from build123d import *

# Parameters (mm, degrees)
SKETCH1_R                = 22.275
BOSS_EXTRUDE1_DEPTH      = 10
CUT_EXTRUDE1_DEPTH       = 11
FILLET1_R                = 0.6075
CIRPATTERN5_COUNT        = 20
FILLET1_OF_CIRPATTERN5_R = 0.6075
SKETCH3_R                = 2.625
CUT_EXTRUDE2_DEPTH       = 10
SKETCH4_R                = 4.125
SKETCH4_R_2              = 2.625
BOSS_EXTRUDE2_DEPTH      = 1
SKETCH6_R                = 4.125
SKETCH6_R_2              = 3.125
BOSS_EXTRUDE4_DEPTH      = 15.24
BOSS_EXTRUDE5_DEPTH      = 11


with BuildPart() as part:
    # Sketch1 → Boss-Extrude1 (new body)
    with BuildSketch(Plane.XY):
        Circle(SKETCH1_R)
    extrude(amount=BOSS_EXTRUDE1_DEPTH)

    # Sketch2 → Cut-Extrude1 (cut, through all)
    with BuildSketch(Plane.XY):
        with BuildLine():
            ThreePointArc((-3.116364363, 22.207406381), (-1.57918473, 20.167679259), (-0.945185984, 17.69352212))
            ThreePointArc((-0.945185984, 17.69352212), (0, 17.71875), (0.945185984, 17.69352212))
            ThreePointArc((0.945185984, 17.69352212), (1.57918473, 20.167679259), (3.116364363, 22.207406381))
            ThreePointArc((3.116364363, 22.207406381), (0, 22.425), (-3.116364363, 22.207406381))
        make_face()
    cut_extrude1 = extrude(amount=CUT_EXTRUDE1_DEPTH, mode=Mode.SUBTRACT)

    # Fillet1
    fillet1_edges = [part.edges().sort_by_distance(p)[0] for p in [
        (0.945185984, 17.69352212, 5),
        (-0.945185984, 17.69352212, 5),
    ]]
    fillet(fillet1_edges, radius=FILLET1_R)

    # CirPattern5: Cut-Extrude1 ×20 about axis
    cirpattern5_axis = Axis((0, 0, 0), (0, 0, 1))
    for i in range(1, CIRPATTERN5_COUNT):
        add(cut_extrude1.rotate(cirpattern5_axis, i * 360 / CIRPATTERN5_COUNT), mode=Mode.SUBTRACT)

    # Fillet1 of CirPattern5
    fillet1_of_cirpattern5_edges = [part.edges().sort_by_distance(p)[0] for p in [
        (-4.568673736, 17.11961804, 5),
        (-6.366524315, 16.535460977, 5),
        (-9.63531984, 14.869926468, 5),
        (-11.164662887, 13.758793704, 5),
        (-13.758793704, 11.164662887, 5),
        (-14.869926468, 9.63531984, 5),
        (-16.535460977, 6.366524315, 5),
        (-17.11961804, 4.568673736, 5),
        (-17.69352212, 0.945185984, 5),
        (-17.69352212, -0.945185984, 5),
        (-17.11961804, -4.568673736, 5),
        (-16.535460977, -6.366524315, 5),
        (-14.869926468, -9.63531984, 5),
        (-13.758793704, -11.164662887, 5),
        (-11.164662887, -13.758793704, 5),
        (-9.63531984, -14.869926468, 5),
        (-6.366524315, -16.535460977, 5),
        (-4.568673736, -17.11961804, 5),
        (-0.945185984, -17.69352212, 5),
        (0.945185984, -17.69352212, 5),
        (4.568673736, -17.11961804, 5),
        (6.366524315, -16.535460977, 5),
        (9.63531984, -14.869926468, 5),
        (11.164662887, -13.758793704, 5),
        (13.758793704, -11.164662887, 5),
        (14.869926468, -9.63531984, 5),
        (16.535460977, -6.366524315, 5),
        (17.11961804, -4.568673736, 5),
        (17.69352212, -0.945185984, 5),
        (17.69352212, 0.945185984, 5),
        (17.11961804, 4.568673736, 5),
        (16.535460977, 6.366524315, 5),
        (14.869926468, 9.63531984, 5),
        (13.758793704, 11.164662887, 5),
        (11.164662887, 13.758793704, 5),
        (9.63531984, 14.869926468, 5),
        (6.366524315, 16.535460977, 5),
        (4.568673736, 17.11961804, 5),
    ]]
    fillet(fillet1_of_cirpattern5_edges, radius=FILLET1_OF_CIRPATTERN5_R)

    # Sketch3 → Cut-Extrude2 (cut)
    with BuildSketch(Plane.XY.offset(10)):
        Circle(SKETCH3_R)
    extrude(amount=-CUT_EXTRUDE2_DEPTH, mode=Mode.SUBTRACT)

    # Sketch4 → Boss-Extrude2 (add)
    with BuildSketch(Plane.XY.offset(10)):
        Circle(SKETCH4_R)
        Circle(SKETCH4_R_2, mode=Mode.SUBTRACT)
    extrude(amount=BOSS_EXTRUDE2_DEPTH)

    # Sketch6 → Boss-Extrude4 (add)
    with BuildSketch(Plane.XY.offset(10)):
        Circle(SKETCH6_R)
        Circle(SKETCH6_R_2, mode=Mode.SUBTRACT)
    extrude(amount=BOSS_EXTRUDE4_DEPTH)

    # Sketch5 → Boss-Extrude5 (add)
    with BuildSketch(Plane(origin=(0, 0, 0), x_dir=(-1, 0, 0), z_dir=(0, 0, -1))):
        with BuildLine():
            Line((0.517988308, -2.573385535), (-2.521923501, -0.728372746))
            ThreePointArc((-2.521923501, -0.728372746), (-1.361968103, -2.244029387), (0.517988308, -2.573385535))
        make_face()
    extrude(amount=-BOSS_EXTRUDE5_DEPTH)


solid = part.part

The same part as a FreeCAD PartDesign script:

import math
import FreeCAD as App
import Part
import Sketcher


def edges_at(feature, points):
    """Names of the edges that pass closest to the given points."""
    edges = feature.Shape.Edges
    near = lambda p: min(range(len(edges)), key=lambda i: edges[i].distToShape(Part.Vertex(*p))[0])
    return sorted({f"Edge{near(p) + 1}" for p in points})

doc = App.newDocument("Part")
params = doc.addObject("Spreadsheet::Sheet", "Params")
for row, (alias, value) in enumerate([
    ("sketch1_diameter", "44.55 mm"),
    ("pad1_length", "10 mm"),
    ("fillet_radius", "0.6075 mm"),
    ("fillet2_radius", "0.6075 mm"),
    ("sketch3_diameter", "5.25 mm"),
    ("pocket2_length", "10 mm"),
    ("sketch4_diameter", "8.25 mm"),
    ("sketch4_diameter2", "5.25 mm"),
    ("pad2_length", "1 mm"),
    ("sketch5_diameter", "8.25 mm"),
    ("sketch5_diameter2", "6.25 mm"),
    ("pad3_length", "15.24 mm"),
    ("pad4_length", "11 mm"),
], start=1):
    params.set(f"A{row}", alias)
    params.set(f"B{row}", "=" + value)
    params.setAlias(f"B{row}", alias)

body = doc.addObject("PartDesign::Body", "Body")

# Sketch on XY plane
sketch1 = body.newObject("Sketcher::SketchObject", "Sketch")
sketch1.AttachmentSupport = (doc.getObject("XY_Plane"), [""])
sketch1.MapMode = "FlatFace"
sketch1.addGeometry(Part.Circle(App.Vector(0, 0, 0), App.Vector(0, 0, 1), 22), False)
sketch1.addConstraint([
    Sketcher.Constraint("Coincident", 0, 3, -1, 1),
    Sketcher.Constraint("Diameter", 0, 44.55),
])
sketch1.setExpression("Constraints[1]", "Params.sketch1_diameter")
pad1 = body.newObject("PartDesign::Pad", "Pad")
pad1.Profile = sketch1
pad1.setExpression("Length", "Params.pad1_length")

# Sketch on XY plane
sketch2 = body.newObject("Sketcher::SketchObject", "Sketch001")
sketch2.AttachmentSupport = (doc.getObject("XY_Plane"), [""])
sketch2.MapMode = "FlatFace"
sketch2.addGeometry([
    Part.ArcOfCircle(Part.Circle(App.Vector(-7.4, 17.3, 0), App.Vector(0, 0, 1), 6.5), math.radians(3), math.radians(48)),
    Part.ArcOfCircle(Part.Circle(App.Vector(0, 0, 0), App.Vector(0, 0, 1), 17.7), math.radians(86.94), math.radians(93.06)),
    Part.ArcOfCircle(Part.Circle(App.Vector(7.4, 17.3, 0), App.Vector(0, 0, 1), 6.5), math.radians(132), math.radians(177)),
    Part.ArcOfCircle(Part.Circle(App.Vector(0, 0, 0), App.Vector(0, 0, 1), 22.4), math.radians(82.01), math.radians(97.99)),
], False)
sketch2.addConstraint([
    Sketcher.Constraint("Coincident", 0, 1, 1, 2),
    Sketcher.Constraint("Coincident", 1, 1, 2, 2),
    Sketcher.Constraint("Coincident", 2, 1, 3, 1),
    Sketcher.Constraint("Coincident", 3, 2, 0, 2),
    Sketcher.Constraint("Coincident", 1, 3, -1, 1),
    Sketcher.Constraint("Coincident", 3, 3, -1, 1),
    Sketcher.Constraint("Equal", 0, 2),
    Sketcher.Constraint("Symmetric", 0, 3, 2, 3, -2),
    Sketcher.Constraint("Radius", 3, 22.425),
    Sketcher.Constraint("Radius", 1, 17.71875),
    Sketcher.Constraint("Radius", 0, 6.508893),
    Sketcher.Constraint("DistanceX", 0, 3, -1, 1, 7.444811),
    Sketcher.Constraint("DistanceY", 0, 3, 0, 1, 0.347209),
])
pocket1 = body.newObject("PartDesign::Pocket", "Pocket")
pocket1.Profile = sketch2
pocket1.Type = "ThroughAll"
pocket1.Reversed = True
doc.recompute()

fillet = body.newObject("PartDesign::Fillet", "Fillet")
fillet.Base = (pocket1, edges_at(pocket1, [(0.945, 17.694, 5), (-0.945, 17.694, 5)]))
fillet.setExpression("Radius", "Params.fillet_radius")
doc.recompute()

polarpattern = body.newObject("PartDesign::PolarPattern", "PolarPattern")
polarpattern.Originals = [pocket1]
polarpattern.Axis = (doc.getObject("Z_Axis"), [""])
polarpattern.Angle = 360
polarpattern.Occurrences = 20
body.Tip = polarpattern
doc.recompute()

fillet2 = body.newObject("PartDesign::Fillet", "Fillet001")
fillet2.Base = (polarpattern, edges_at(polarpattern, [
    (-4.569, 17.12, 5),
    (-6.367, 16.535, 5),
    (-9.635, 14.87, 5),
    (-11.165, 13.759, 5),
    (-13.759, 11.165, 5),
    (-14.87, 9.635, 5),
    (-16.535, 6.367, 5),
    (-17.12, 4.569, 5),
    (-17.694, 0.945, 5),
    (-17.694, -0.945, 5),
    (-17.12, -4.569, 5),
    (-16.535, -6.367, 5),
    (-14.87, -9.635, 5),
    (-13.759, -11.165, 5),
    (-11.165, -13.759, 5),
    (-9.635, -14.87, 5),
    (-6.367, -16.535, 5),
    (-4.569, -17.12, 5),
    (-0.945, -17.694, 5),
    (0.945, -17.694, 5),
    (4.569, -17.12, 5),
    (6.367, -16.535, 5),
    (9.635, -14.87, 5),
    (11.165, -13.759, 5),
    (13.759, -11.165, 5),
    (14.87, -9.635, 5),
    (16.535, -6.367, 5),
    (17.12, -4.569, 5),
    (17.694, -0.945, 5),
    (17.694, 0.945, 5),
    (17.12, 4.569, 5),
    (16.535, 6.367, 5),
    (14.87, 9.635, 5),
    (13.759, 11.165, 5),
    (11.165, 13.759, 5),
    (9.635, 14.87, 5),
    (6.367, 16.535, 5),
    (4.569, 17.12, 5),
]))
fillet2.setExpression("Radius", "Params.fillet2_radius")

# Sketch on XY plane
sketch3 = body.newObject("Sketcher::SketchObject", "Sketch002")
sketch3.AttachmentSupport = (doc.getObject("XY_Plane"), [""])
sketch3.MapMode = "FlatFace"
sketch3.AttachmentOffset = App.Placement(App.Vector(0, 0, 10), App.Rotation())
sketch3.addGeometry(Part.Circle(App.Vector(0, 0, 0), App.Vector(0, 0, 1), 2.6), False)
sketch3.addConstraint([
    Sketcher.Constraint("Coincident", 0, 3, -1, 1),
    Sketcher.Constraint("Diameter", 0, 5.25),
])
sketch3.setExpression("Constraints[1]", "Params.sketch3_diameter")
pocket2 = body.newObject("PartDesign::Pocket", "Pocket001")
pocket2.Profile = sketch3
pocket2.setExpression("Length", "Params.pocket2_length")

# Sketch on XY plane
sketch4 = body.newObject("Sketcher::SketchObject", "Sketch003")
sketch4.AttachmentSupport = (doc.getObject("XY_Plane"), [""])
sketch4.MapMode = "FlatFace"
sketch4.AttachmentOffset = App.Placement(App.Vector(0, 0, 10), App.Rotation())
sketch4.addGeometry([
    Part.Circle(App.Vector(0, 0, 0), App.Vector(0, 0, 1), 4.1),
    Part.Circle(App.Vector(0, 0, 0), App.Vector(0, 0, 1), 2.6),
], False)
sketch4.addConstraint([
    Sketcher.Constraint("Coincident", 0, 3, -1, 1),
    Sketcher.Constraint("Coincident", 1, 3, -1, 1),
    Sketcher.Constraint("Diameter", 0, 8.25),
    Sketcher.Constraint("Diameter", 1, 5.25),
])
sketch4.setExpression("Constraints[2]", "Params.sketch4_diameter")
sketch4.setExpression("Constraints[3]", "Params.sketch4_diameter2")
pad2 = body.newObject("PartDesign::Pad", "Pad001")
pad2.Profile = sketch4
pad2.setExpression("Length", "Params.pad2_length")

# Sketch on XY plane
sketch5 = body.newObject("Sketcher::SketchObject", "Sketch004")
sketch5.AttachmentSupport = (doc.getObject("XY_Plane"), [""])
sketch5.MapMode = "FlatFace"
sketch5.AttachmentOffset = App.Placement(App.Vector(0, 0, 10), App.Rotation())
sketch5.addGeometry([
    Part.Circle(App.Vector(0, 0, 0), App.Vector(0, 0, 1), 4.1),
    Part.Circle(App.Vector(0, 0, 0), App.Vector(0, 0, 1), 3.1),
], False)
sketch5.addConstraint([
    Sketcher.Constraint("Coincident", 0, 3, -1, 1),
    Sketcher.Constraint("Coincident", 1, 3, -1, 1),
    Sketcher.Constraint("Diameter", 0, 8.25),
    Sketcher.Constraint("Diameter", 1, 6.25),
])
sketch5.setExpression("Constraints[2]", "Params.sketch5_diameter")
sketch5.setExpression("Constraints[3]", "Params.sketch5_diameter2")
pad3 = body.newObject("PartDesign::Pad", "Pad002")
pad3.Profile = sketch5
pad3.setExpression("Length", "Params.pad3_length")

# Sketch on XY plane
sketch6 = body.newObject("Sketcher::SketchObject", "Sketch005")
sketch6.AttachmentSupport = (doc.getObject("XY_Plane"), [""])
sketch6.MapMode = "FlatFace"
sketch6.addGeometry([
    Part.LineSegment(App.Vector(-0.5, -2.6, 0), App.Vector(2.5, -0.7, 0)),
    Part.ArcOfCircle(Part.Circle(App.Vector(0, 0, 0), App.Vector(0, 0, 1), 2.6), math.radians(-101), math.radians(-16)),
], False)
sketch6.addConstraint([
    Sketcher.Constraint("Coincident", 0, 1, 1, 1),
    Sketcher.Constraint("Coincident", 1, 2, 0, 2),
    Sketcher.Constraint("Coincident", 1, 3, -1, 1),
    Sketcher.Constraint("Radius", 1, 2.625),
    Sketcher.Constraint("Distance", 0, 3.556),
    Sketcher.Constraint("DistanceX", 0, 1, -1, 1, 0.517988),
])
pad4 = body.newObject("PartDesign::Pad", "Pad003")
pad4.Profile = sketch6
pad4.setExpression("Length", "Params.pad4_length")

doc.recompute()
